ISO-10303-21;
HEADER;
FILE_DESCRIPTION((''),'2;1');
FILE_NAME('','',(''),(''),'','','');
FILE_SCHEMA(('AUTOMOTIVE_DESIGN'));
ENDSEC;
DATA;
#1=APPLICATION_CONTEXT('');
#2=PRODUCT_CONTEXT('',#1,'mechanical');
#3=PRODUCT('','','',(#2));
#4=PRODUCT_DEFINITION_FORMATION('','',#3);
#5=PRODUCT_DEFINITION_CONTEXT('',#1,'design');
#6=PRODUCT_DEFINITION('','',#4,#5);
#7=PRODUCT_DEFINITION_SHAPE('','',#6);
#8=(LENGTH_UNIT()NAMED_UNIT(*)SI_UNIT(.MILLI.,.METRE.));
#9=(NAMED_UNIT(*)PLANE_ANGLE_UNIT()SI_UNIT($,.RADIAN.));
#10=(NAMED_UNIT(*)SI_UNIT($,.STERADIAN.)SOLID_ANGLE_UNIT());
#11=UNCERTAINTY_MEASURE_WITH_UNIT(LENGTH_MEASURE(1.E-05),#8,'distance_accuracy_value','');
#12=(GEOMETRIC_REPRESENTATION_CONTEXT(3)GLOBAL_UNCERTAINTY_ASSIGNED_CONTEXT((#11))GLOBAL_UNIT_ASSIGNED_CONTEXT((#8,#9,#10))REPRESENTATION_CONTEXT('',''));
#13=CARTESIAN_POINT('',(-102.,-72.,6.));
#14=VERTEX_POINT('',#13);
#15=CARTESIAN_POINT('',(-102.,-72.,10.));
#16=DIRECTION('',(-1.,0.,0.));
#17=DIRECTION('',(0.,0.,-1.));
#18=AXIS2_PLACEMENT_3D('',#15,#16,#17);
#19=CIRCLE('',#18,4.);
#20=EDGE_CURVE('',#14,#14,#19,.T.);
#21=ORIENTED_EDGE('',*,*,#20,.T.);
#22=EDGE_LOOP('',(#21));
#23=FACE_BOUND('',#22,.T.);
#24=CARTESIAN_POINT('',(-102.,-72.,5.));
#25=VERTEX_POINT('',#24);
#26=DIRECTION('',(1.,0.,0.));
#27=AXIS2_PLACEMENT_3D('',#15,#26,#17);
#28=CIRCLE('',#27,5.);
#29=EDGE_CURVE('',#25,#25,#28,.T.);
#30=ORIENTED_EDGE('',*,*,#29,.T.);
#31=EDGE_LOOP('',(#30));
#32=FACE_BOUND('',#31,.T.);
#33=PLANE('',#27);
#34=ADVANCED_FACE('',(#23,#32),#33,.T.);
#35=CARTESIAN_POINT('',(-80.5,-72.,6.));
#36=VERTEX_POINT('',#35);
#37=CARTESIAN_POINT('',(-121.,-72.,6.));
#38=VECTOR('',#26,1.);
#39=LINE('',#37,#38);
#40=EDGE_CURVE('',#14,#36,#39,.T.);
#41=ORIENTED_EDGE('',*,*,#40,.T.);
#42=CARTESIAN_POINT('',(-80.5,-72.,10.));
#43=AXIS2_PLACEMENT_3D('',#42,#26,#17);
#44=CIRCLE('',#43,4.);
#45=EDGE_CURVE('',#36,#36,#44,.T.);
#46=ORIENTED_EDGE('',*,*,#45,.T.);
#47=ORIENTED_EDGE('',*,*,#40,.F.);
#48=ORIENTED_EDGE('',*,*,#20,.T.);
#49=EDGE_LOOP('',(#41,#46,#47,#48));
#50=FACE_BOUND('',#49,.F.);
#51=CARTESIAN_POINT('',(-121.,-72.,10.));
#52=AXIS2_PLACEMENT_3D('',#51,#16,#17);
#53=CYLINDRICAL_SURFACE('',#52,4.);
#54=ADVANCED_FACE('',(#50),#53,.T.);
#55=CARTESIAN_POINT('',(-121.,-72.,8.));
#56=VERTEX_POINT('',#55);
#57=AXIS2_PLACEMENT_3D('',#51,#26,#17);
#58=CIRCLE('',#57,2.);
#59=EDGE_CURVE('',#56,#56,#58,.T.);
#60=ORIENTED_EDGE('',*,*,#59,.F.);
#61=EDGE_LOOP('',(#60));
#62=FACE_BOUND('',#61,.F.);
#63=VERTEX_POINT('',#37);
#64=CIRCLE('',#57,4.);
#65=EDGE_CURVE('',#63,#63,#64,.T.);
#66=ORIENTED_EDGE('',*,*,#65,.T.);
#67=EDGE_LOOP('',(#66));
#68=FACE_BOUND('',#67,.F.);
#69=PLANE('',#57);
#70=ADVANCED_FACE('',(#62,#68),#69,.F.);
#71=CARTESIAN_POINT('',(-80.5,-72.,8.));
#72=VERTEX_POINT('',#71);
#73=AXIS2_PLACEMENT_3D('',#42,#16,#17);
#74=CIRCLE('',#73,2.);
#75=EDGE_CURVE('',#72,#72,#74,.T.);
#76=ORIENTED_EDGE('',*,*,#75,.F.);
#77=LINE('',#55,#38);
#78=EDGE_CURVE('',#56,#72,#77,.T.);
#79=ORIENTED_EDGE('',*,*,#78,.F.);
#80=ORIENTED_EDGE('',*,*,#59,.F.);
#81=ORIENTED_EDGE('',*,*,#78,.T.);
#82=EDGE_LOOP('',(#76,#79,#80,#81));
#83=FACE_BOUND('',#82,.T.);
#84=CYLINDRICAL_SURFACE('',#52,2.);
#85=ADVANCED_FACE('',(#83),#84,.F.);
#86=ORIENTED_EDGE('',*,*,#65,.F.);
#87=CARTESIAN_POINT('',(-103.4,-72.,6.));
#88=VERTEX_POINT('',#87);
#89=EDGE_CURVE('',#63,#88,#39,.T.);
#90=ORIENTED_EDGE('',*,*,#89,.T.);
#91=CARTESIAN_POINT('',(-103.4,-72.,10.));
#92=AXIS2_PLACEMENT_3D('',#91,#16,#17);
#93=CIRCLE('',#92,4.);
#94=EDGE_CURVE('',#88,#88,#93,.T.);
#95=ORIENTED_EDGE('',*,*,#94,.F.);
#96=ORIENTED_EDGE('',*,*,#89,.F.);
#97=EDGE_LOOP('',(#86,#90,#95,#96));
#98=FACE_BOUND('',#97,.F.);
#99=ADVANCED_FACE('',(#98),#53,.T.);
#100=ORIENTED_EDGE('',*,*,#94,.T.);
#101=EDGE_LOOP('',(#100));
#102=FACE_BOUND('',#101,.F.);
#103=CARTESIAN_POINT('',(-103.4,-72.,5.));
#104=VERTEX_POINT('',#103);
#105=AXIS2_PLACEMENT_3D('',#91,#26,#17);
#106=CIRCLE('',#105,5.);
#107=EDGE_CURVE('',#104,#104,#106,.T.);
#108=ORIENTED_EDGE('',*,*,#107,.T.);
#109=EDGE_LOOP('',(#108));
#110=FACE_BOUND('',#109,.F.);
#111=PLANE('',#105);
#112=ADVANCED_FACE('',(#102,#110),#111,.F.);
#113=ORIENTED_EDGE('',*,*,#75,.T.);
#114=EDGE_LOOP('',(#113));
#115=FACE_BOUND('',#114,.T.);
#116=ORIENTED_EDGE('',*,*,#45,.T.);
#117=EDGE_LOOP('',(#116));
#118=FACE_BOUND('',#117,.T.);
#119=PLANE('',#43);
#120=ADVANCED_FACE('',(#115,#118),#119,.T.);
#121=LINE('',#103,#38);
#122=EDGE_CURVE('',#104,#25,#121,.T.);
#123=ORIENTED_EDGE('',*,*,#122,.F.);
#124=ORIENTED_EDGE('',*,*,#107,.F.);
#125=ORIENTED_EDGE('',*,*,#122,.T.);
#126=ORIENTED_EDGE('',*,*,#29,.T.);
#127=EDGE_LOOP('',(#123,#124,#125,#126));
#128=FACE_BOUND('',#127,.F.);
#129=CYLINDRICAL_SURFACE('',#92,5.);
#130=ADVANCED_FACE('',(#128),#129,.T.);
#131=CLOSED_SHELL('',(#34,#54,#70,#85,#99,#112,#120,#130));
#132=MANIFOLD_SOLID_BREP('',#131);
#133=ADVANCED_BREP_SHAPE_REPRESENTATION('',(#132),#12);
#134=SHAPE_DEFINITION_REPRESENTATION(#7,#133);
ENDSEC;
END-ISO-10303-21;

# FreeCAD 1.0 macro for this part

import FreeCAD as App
import Part
import Sketcher
from FreeCAD import Vector
Q = App.Units.Quantity

doc = App.newDocument("Part")
body = doc.addObject("PartDesign::Body", "Body")

sketch1 = doc.addObject("Sketcher::SketchObject", "Sketch")
body.addObject(sketch1)
sketch1.AttachmentSupport = (doc.YZ_Plane, [""])
sketch1.MapMode = "FlatFace"
sketch1.AttachmentOffset = App.Placement(Vector(0, 0, -125), App.Rotation())
sketch1.addGeometry(Part.Circle(Vector(-82, 10, 0), Vector(0, 0, 1), 2), False)
sketch1.addConstraint(Sketcher.Constraint("Diameter", 0, Q("4 mm")))
sketch1.addConstraint(Sketcher.Constraint("DistanceX", 0, 3, -1, 1, Q("82 mm")))
sketch1.addConstraint(Sketcher.Constraint("DistanceY", -1, 1, 0, 3, Q("10 mm")))
pad1 = doc.addObject("PartDesign::Pad", "Pad")
body.addObject(pad1)
pad1.Profile = sketch1
pad1.Length = 47.8
body2 = doc.addObject("PartDesign::Body", "Body001")

sketch2 = doc.addObject("Sketcher::SketchObject", "Sketch001")
body2.addObject(sketch2)
sketch2.AttachmentSupport = (doc.getObject("YZ_Plane001"), [""])
sketch2.MapMode = "FlatFace"
sketch2.AttachmentOffset = App.Placement(Vector(0, 0, -107.4), App.Rotation())
sketch2.addGeometry(Part.Circle(Vector(-82, 10, 0), Vector(0, 0, 1), 5), False)
sketch2.addConstraint(Sketcher.Constraint("Diameter", 0, Q("10 mm")))
sketch2.addConstraint(Sketcher.Constraint("DistanceX", 0, 3, -1, 1, Q("82 mm")))
sketch2.addConstraint(Sketcher.Constraint("DistanceY", -1, 1, 0, 3, Q("10 mm")))
pad2 = doc.addObject("PartDesign::Pad", "Pad001")
body2.addObject(pad2)
pad2.Profile = sketch2
pad2.Length = 1.4
body3 = doc.addObject("PartDesign::Body", "Body002")

sketch3 = doc.addObject("Sketcher::SketchObject", "Sketch002")
body3.addObject(sketch3)
sketch3.AttachmentSupport = (doc.getObject("YZ_Plane002"), [""])
sketch3.MapMode = "FlatFace"
sketch3.AttachmentOffset = App.Placement(Vector(0, 0, -125), App.Rotation())
sketch3.addGeometry(Part.Circle(Vector(-82, 10, 0), Vector(0, 0, 1), 4), False)
sketch3.addConstraint(Sketcher.Constraint("Diameter", 0, Q("8 mm")))
sketch3.addConstraint(Sketcher.Constraint("DistanceX", 0, 3, -1, 1, Q("82 mm")))
sketch3.addConstraint(Sketcher.Constraint("DistanceY", -1, 1, 0, 3, Q("10 mm")))
pad3 = doc.addObject("PartDesign::Pad", "Pad002")
body3.addObject(pad3)
pad3.Profile = sketch3
pad3.Length = 40.5
doc.recompute()

boolean = doc.addObject("PartDesign::Boolean", "Boolean")
body3.addObject(boolean)
boolean.Type = "Fuse"
boolean.addObjects([body2])
doc.recompute()

boolean2 = doc.addObject("PartDesign::Boolean", "Boolean001")
body3.addObject(boolean2)
boolean2.Type = "Cut"
boolean2.addObjects([body])
body4 = doc.addObject("PartDesign::Body", "Body003")
doc.recompute()

body3.Placement = App.Placement(Vector(4, 10, 0), App.Rotation(Vector(0, 0, 1), 0))
boolean3 = doc.addObject("PartDesign::Boolean", "Boolean002")
body4.addObject(boolean3)
boolean3.Type = "Fuse"
boolean3.addObjects([body3])

doc.recompute()
